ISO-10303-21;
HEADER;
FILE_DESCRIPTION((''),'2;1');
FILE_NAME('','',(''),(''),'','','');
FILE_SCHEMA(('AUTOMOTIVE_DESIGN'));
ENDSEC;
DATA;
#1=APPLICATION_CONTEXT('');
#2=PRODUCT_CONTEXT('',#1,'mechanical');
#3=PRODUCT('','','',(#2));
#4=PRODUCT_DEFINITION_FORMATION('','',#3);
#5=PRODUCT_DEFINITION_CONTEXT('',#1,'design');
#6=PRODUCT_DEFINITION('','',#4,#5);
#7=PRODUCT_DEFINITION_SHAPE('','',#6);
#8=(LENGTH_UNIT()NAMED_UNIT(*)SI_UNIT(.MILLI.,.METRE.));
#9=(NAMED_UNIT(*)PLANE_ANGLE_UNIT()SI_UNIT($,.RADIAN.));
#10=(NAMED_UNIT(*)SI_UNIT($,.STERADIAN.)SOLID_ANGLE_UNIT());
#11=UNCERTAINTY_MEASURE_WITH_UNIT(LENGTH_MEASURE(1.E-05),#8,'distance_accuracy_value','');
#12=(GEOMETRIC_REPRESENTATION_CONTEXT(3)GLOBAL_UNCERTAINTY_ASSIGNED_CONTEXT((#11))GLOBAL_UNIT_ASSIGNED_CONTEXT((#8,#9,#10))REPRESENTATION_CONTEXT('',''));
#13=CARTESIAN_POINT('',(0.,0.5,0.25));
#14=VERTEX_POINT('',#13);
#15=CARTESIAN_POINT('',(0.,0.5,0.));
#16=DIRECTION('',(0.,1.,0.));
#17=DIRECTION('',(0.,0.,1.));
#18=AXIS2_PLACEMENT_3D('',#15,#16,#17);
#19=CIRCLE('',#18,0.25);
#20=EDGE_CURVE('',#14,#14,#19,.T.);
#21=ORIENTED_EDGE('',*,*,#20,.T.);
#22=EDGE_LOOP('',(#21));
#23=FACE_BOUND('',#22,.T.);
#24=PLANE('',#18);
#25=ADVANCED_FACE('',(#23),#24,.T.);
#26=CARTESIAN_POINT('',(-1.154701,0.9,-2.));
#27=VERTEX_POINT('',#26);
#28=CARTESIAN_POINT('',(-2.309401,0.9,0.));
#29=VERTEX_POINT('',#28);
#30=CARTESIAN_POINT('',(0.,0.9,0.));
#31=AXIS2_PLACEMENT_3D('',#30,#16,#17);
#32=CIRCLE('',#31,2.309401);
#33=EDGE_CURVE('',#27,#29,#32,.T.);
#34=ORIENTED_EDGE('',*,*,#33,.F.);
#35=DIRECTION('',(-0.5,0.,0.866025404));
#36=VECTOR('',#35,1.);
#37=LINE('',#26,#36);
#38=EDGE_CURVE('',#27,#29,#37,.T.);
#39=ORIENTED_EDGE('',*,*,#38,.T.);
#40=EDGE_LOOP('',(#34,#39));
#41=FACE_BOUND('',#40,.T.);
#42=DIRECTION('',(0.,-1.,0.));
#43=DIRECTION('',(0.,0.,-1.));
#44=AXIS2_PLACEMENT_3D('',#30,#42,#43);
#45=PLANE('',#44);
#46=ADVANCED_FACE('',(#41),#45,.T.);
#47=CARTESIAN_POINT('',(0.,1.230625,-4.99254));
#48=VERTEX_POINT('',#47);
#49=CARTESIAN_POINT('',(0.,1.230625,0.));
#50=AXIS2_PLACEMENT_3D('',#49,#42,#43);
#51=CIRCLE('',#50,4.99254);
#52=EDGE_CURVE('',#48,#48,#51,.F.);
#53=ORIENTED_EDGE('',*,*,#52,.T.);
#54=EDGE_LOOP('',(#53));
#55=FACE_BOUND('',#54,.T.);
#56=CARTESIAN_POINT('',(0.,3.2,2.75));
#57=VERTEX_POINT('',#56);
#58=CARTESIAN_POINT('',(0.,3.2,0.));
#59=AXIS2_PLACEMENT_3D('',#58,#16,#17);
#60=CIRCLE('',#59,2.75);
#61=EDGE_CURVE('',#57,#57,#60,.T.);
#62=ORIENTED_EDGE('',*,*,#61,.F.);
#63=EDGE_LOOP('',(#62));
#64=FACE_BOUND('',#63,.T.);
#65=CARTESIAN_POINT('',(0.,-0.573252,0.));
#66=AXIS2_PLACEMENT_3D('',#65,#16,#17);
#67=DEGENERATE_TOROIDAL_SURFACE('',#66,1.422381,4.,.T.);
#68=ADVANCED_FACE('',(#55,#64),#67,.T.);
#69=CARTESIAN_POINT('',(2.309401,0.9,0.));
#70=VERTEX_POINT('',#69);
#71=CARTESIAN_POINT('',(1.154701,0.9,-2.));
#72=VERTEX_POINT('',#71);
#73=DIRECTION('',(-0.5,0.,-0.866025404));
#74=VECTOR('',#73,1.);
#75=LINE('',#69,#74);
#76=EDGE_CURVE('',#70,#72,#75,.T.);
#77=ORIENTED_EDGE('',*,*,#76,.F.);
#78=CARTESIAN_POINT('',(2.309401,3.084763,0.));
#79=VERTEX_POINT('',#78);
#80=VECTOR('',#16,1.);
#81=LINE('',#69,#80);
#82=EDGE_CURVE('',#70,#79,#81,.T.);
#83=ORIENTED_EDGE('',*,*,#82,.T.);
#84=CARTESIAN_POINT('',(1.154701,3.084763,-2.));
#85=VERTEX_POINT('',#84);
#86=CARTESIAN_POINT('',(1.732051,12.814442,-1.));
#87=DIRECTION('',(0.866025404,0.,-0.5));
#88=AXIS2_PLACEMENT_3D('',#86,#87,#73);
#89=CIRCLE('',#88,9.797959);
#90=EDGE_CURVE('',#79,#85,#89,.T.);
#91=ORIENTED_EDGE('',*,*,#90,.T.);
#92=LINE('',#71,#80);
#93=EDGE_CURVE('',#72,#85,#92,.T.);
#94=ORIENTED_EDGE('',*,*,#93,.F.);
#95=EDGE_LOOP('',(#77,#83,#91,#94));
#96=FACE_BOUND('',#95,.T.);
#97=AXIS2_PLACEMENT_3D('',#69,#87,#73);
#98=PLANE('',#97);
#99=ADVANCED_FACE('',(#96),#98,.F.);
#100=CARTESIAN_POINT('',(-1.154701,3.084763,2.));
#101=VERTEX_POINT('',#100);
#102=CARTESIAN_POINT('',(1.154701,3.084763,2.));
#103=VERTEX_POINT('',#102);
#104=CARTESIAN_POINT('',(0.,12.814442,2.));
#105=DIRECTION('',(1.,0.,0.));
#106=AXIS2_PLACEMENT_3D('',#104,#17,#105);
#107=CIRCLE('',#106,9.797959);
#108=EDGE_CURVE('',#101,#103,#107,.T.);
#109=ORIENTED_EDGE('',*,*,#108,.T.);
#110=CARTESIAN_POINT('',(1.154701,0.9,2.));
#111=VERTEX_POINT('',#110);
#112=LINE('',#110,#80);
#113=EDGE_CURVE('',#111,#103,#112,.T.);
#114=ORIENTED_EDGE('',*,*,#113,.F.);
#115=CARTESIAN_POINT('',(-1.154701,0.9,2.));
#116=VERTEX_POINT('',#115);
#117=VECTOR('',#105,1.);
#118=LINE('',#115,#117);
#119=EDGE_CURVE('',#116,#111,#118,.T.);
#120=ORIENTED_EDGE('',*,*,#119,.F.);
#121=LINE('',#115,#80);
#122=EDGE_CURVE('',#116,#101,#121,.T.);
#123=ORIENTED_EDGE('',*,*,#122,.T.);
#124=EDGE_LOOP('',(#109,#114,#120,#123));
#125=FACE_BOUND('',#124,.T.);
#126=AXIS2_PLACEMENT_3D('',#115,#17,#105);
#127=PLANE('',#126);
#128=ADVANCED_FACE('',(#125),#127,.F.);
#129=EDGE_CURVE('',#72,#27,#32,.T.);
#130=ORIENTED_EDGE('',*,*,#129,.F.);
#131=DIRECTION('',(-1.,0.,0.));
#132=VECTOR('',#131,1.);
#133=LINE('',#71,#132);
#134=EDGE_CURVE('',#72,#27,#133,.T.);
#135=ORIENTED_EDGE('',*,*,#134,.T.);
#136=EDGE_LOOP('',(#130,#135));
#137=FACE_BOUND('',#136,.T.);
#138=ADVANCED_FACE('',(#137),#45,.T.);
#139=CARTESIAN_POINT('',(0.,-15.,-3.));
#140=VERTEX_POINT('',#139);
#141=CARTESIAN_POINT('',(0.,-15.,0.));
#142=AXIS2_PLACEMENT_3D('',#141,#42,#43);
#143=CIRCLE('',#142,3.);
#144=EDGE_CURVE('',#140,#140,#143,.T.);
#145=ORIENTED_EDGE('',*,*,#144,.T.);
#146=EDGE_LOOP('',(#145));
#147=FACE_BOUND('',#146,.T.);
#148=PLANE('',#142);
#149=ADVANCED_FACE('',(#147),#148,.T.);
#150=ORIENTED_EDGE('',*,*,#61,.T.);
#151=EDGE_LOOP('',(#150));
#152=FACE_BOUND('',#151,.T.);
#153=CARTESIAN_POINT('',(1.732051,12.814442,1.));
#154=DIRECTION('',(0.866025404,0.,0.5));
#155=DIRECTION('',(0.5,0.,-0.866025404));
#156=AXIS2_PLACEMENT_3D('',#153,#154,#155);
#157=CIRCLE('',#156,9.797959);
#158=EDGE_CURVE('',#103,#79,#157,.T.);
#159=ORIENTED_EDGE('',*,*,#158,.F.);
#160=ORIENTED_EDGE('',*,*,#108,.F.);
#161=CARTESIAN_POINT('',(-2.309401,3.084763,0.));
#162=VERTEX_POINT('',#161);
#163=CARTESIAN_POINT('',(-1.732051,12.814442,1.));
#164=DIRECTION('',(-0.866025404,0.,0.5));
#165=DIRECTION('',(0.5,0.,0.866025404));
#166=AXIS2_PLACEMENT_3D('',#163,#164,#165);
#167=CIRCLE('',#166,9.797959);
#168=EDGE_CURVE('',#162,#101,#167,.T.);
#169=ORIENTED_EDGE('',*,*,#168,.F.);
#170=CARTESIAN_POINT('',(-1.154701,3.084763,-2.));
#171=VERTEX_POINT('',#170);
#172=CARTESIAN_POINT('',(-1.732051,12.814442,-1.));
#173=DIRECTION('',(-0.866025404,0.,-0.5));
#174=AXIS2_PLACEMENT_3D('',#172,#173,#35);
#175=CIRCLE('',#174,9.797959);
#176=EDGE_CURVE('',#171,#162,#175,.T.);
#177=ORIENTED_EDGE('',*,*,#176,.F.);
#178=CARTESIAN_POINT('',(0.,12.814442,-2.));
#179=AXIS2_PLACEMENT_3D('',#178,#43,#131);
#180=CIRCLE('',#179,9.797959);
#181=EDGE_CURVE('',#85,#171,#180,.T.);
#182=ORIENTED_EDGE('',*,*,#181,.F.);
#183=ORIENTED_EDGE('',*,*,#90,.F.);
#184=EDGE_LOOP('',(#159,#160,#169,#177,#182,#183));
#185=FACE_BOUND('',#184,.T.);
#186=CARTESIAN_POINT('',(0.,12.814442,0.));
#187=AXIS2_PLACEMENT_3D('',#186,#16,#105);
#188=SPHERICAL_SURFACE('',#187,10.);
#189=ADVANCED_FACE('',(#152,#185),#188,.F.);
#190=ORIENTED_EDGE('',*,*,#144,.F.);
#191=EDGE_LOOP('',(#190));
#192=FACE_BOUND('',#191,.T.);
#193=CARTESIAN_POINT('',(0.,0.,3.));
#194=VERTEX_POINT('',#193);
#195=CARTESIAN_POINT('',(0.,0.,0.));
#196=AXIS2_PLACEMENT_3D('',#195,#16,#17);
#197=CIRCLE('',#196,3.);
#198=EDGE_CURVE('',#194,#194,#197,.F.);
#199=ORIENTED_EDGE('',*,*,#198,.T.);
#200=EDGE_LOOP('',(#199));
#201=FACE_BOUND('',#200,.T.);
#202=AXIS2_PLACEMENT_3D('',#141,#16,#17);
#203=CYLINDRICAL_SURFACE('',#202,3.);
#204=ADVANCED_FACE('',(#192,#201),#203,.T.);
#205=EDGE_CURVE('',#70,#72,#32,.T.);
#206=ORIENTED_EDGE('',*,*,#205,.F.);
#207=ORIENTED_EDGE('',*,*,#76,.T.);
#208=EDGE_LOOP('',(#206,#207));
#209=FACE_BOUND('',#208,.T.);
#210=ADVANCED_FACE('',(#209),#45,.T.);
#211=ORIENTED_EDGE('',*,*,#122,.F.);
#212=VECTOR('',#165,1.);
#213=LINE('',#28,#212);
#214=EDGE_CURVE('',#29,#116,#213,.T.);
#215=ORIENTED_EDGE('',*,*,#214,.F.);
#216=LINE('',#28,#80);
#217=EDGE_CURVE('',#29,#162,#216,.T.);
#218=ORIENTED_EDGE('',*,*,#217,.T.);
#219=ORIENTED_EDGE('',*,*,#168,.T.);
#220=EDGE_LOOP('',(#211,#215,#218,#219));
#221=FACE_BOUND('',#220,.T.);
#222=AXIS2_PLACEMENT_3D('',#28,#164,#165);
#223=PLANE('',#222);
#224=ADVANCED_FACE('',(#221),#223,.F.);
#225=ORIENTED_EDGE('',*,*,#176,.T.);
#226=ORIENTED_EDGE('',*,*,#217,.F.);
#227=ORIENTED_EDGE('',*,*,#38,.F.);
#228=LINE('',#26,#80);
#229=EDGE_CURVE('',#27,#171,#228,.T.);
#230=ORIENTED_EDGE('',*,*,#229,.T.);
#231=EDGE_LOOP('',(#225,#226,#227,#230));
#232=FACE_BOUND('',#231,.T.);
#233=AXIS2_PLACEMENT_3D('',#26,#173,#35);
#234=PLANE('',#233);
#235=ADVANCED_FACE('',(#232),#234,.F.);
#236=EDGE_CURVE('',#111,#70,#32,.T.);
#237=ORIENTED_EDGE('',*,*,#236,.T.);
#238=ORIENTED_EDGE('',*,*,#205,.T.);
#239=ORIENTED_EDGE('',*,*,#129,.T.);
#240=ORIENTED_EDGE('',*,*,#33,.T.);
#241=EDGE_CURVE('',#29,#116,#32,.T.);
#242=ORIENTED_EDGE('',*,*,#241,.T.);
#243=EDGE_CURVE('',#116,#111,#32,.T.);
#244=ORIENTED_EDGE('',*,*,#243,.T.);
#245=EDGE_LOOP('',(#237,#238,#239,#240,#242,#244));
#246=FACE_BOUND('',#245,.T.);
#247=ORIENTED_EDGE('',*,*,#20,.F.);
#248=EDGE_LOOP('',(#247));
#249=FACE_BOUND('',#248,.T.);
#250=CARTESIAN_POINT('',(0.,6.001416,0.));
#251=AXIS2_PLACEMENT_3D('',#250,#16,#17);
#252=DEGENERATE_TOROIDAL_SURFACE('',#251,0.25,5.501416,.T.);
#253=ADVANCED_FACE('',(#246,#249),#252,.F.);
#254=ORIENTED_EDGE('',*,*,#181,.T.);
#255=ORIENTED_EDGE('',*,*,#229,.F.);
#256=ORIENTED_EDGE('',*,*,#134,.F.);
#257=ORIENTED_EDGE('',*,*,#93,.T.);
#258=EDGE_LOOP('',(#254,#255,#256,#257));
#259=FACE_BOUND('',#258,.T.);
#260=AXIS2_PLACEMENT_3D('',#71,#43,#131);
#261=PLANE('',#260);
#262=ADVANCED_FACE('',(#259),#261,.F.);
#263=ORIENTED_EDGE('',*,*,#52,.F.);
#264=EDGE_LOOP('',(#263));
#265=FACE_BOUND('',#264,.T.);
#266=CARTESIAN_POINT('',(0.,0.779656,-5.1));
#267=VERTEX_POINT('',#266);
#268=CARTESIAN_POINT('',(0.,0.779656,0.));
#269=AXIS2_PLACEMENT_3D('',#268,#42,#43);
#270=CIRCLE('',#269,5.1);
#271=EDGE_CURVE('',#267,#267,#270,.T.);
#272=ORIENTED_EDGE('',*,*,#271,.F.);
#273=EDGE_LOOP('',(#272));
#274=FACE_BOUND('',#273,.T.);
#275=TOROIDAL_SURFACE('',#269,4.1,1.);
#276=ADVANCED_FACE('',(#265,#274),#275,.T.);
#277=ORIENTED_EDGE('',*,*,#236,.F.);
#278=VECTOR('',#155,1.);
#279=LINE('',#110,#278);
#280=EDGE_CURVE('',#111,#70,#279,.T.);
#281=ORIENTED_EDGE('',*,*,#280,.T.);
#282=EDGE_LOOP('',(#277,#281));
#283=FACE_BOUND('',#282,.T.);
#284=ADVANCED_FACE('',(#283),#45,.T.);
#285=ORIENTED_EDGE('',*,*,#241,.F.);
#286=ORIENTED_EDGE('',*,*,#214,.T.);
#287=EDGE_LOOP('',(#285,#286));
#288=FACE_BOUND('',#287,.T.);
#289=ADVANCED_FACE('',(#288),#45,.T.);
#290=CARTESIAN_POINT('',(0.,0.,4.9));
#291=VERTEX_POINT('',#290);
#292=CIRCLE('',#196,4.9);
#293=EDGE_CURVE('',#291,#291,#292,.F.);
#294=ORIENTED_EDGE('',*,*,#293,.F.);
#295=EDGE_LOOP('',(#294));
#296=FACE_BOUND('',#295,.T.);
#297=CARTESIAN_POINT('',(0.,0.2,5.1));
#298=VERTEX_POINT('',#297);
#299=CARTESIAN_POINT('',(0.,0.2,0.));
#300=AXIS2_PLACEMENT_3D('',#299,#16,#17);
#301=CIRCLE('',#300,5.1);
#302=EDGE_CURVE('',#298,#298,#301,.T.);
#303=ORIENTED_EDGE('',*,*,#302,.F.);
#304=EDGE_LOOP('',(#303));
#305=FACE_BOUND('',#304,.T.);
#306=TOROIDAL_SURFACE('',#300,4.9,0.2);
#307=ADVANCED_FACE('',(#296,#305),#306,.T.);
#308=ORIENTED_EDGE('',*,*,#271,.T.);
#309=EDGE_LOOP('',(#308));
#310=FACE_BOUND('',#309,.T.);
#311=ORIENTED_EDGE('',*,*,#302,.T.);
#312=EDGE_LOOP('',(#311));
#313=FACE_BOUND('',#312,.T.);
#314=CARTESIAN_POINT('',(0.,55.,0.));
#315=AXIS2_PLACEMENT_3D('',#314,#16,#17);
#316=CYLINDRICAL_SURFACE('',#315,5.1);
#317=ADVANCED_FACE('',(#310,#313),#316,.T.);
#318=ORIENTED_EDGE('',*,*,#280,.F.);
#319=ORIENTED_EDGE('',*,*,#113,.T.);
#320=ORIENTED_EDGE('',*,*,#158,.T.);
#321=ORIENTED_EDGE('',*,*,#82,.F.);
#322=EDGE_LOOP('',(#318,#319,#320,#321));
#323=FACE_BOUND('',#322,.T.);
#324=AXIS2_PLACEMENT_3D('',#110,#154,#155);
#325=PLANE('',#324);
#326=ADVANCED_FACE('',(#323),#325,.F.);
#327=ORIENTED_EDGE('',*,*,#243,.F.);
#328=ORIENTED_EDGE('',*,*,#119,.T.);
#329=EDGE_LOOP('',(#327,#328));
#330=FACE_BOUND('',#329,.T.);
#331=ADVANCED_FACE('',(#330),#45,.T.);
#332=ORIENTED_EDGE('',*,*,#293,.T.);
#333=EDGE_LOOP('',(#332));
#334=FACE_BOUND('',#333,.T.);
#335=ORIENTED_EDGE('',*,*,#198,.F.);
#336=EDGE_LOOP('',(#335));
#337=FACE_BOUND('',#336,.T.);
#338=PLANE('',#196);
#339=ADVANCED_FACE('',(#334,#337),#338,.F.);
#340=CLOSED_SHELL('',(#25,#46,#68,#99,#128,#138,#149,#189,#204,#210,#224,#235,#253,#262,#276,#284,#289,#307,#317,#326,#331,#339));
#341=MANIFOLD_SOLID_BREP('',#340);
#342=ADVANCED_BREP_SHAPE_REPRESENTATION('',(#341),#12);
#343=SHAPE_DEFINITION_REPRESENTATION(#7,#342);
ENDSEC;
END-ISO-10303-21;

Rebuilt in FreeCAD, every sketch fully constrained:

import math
import FreeCAD as App
import Part
import Sketcher

V = App.Vector
Q = App.Units.Quantity


def edges_at(feature, points):
    """Names of the edges that pass closest to the given points."""
    edges = feature.Shape.Edges
    near = lambda p: min(range(len(edges)), key=lambda i: edges[i].distToShape(Part.Vertex(*p))[0])
    return sorted({f"Edge{near(p) + 1}" for p in points})

doc = App.newDocument("Part")
body = doc.addObject("PartDesign::Body", "Body")

sketch1 = body.newObject("Sketcher::SketchObject", "Sketch")
sketch1.AttachmentSupport = (doc.getObject("XY_Plane"), [""])
sketch1.MapMode = "FlatFace"
sketch1.addGeometry(Part.LineSegment(V(0, 0, 0), V(5.1, 0, 0)), False)
sketch1.addGeometry(Part.LineSegment(V(5.1, 0, 0), V(5.1, 1, 0)), False)
sketch1.addGeometry(Part.ArcOfCircle(Part.Circle(V(1.4, -0.6, 0), V(0, 0, 1), 4), math.radians(23), math.radians(71)), False)
sketch1.addGeometry(Part.LineSegment(V(2.8, 3.2, 0), V(0, 3.2, 0)), False)
sketch1.addGeometry(Part.LineSegment(V(0, 3.2, 0), V(0, 0, 0)), False)
sketch1.addConstraint(Sketcher.Constraint("Coincident", 0, 2, 1, 1))
sketch1.addConstraint(Sketcher.Constraint("Coincident", 1, 2, 2, 1))
sketch1.addConstraint(Sketcher.Constraint("Coincident", 2, 2, 3, 1))
sketch1.addConstraint(Sketcher.Constraint("Coincident", 3, 2, 4, 1))
sketch1.addConstraint(Sketcher.Constraint("Coincident", 4, 2, 0, 1))
sketch1.addConstraint(Sketcher.Constraint("Horizontal", 0))
sketch1.addConstraint(Sketcher.Constraint("Vertical", 1))
sketch1.addConstraint(Sketcher.Constraint("Horizontal", 3))
sketch1.addConstraint(Sketcher.Constraint("Vertical", 4))
sketch1.addConstraint(Sketcher.Constraint("Coincident", 4, 2, -1, 1))
sketch1.addConstraint(Sketcher.Constraint("Radius", 2, Q("4 mm")))
sketch1.addConstraint(Sketcher.Constraint("DistanceY", 1, 1, 1, 2, Q("1 mm")))
sketch1.addConstraint(Sketcher.Constraint("DistanceX", 0, 1, 0, 2, Q("5.1 mm")))
sketch1.addConstraint(Sketcher.Constraint("DistanceY", 4, 2, 4, 1, Q("3.2 mm")))
sketch1.addConstraint(Sketcher.Constraint("DistanceX", 3, 2, 3, 1, Q("2.75 mm")))
revolution = body.newObject("PartDesign::Revolution", "Revolution")
revolution.Profile = sketch1
revolution.ReferenceAxis = (sketch1, ["V_Axis"])
revolution.Angle = 360
doc.recompute()

fillet = body.newObject("PartDesign::Fillet", "Fillet")
fillet.Base = (revolution, edges_at(revolution, [(-5.1, 0, 0)]))
fillet.Radius = 0.2
doc.recompute()

fillet2 = body.newObject("PartDesign::Fillet", "Fillet001")
fillet2.Base = (fillet, edges_at(fillet, [(-5.1, 1, 0)]))
fillet2.Radius = 1

sketch2 = body.newObject("Sketcher::SketchObject", "Sketch001")
sketch2.AttachmentSupport = (doc.getObject("XZ_Plane"), [""])
sketch2.MapMode = "FlatFace"
sketch2.addGeometry(Part.Circle(V(0, 0, 0), V(0, 0, 1), 3), False)
sketch2.addConstraint(Sketcher.Constraint("Coincident", 0, 3, -1, 1))
sketch2.addConstraint(Sketcher.Constraint("Diameter", 0, Q("6 mm")))
pad1 = body.newObject("PartDesign::Pad", "Pad")
pad1.Profile = sketch2
pad1.Length = 15

sketch3 = body.newObject("Sketcher::SketchObject", "Sketch002")
sketch3.AttachmentSupport = (doc.getObject("XY_Plane"), [""])
sketch3.MapMode = "FlatFace"
sketch3.addGeometry(Part.LineSegment(V(0, 3.2, 0), V(0, 0, 0)), False)
sketch3.addGeometry(Part.LineSegment(V(0, 0, 0), V(4.9, 0, 0)), False)
sketch3.addGeometry(Part.LineSegment(V(4.9, 0, 0), V(2.8, 3.2, 0)), False)
sketch3.addGeometry(Part.LineSegment(V(2.8, 3.2, 0), V(0, 3.2, 0)), False)
sketch3.addConstraint(Sketcher.Constraint("Coincident", 0, 2, 1, 1))
sketch3.addConstraint(Sketcher.Constraint("Coincident", 1, 2, 2, 1))
sketch3.addConstraint(Sketcher.Constraint("Coincident", 2, 2, 3, 1))
sketch3.addConstraint(Sketcher.Constraint("Coincident", 3, 2, 0, 1))
sketch3.addConstraint(Sketcher.Constraint("Vertical", 0))
sketch3.addConstraint(Sketcher.Constraint("Horizontal", 1))
sketch3.addConstraint(Sketcher.Constraint("Horizontal", 3))
sketch3.addConstraint(Sketcher.Constraint("Coincident", 0, 2, -1, 1))
sketch3.addConstraint(Sketcher.Constraint("DistanceX", 1, 1, 1, 2, Q("4.9 mm")))
sketch3.addConstraint(Sketcher.Constraint("DistanceY", 0, 2, 0, 1, Q("3.2 mm")))
sketch3.addConstraint(Sketcher.Constraint("DistanceX", 3, 2, 3, 1, Q("2.75 mm")))
revolution2 = body.newObject("PartDesign::Revolution", "Revolution001")
revolution2.Profile = sketch3
revolution2.ReferenceAxis = (sketch3, ["V_Axis"])
revolution2.Angle = 360

sketch4 = body.newObject("Sketcher::SketchObject", "Sketch003")
sketch4.AttachmentSupport = (doc.getObject("XZ_Plane"), [""])
sketch4.MapMode = "FlatFace"
sketch4.AttachmentOffset = App.Placement(V(0, 0, -3.2), App.Rotation())
sketch4.addGeometry(Part.LineSegment(V(1.2, 2, 0), V(2.3, 0, 0)), False)
sketch4.addGeometry(Part.LineSegment(V(2.3, 0, 0), V(1.2, -2, 0)), False)
sketch4.addGeometry(Part.LineSegment(V(1.2, -2, 0), V(-1.2, -2, 0)), False)
sketch4.addGeometry(Part.LineSegment(V(-1.2, -2, 0), V(-2.3, 0, 0)), False)
sketch4.addGeometry(Part.LineSegment(V(-2.3, 0, 0), V(-1.2, 2, 0)), False)
sketch4.addGeometry(Part.LineSegment(V(-1.2, 2, 0), V(1.2, 2, 0)), False)
sketch4.addConstraint(Sketcher.Constraint("Coincident", 0, 2, 1, 1))
sketch4.addConstraint(Sketcher.Constraint("Coincident", 1, 2, 2, 1))
sketch4.addConstraint(Sketcher.Constraint("Coincident", 2, 2, 3, 1))
sketch4.addConstraint(Sketcher.Constraint("Coincident", 3, 2, 4, 1))
sketch4.addConstraint(Sketcher.Constraint("Coincident", 4, 2, 5, 1))
sketch4.addConstraint(Sketcher.Constraint("Coincident", 5, 2, 0, 1))
sketch4.addConstraint(Sketcher.Constraint("Horizontal", 2))
sketch4.addConstraint(Sketcher.Constraint("Horizontal", 5))
sketch4.addConstraint(Sketcher.Constraint("Symmetric", 0, 2, 3, 2, -1, 1))
sketch4.addConstraint(Sketcher.Constraint("Symmetric", 1, 2, 4, 2, -1, 1))
sketch4.addConstraint(Sketcher.Constraint("PointOnObject", 0, 2, -1))
sketch4.addConstraint(Sketcher.Constraint("Parallel", 0, 3))
sketch4.addConstraint(Sketcher.Constraint("Vertical", 2, 2, 4, 2))
sketch4.addConstraint(Sketcher.Constraint("Angle", 0, Q("-60 deg")))
sketch4.addConstraint(Sketcher.Constraint("DistanceY", 1, 2, -1, 1, Q("2 mm")))
sketch4.addConstraint(Sketcher.Constraint("DistanceX", 2, 2, 2, 1, Q("2.309401 mm")))
pocket1 = body.newObject("PartDesign::Pocket", "Pocket")
pocket1.Profile = sketch4
pocket1.Length = 2.3
pocket1.Reversed = True

sketch5 = body.newObject("Sketcher::SketchObject", "Sketch004")
sketch5.AttachmentSupport = (doc.getObject("XY_Plane"), [""])
sketch5.MapMode = "FlatFace"
sketch5.addGeometry(Part.LineSegment(V(0, 0.9, 0), V(0, 0.5, 0)), False)
sketch5.addGeometry(Part.LineSegment(V(0, 0.5, 0), V(0.25, 0.5, 0)), False)
sketch5.addGeometry(Part.ArcOfCircle(Part.Circle(V(0.25, 6, 0), V(0, 0, 1), 5.5), math.radians(-90), math.radians(-68)), False)
sketch5.addGeometry(Part.LineSegment(V(2.31, 0.9, 0), V(0, 0.9, 0)), False)
sketch5.addConstraint(Sketcher.Constraint("Coincident", 0, 2, 1, 1))
sketch5.addConstraint(Sketcher.Constraint("Tangent", 1, 2, 2, 1))
sketch5.addConstraint(Sketcher.Constraint("Coincident", 2, 2, 3, 1))
sketch5.addConstraint(Sketcher.Constraint("Coincident", 3, 2, 0, 1))
sketch5.addConstraint(Sketcher.Constraint("Vertical", 0))
sketch5.addConstraint(Sketcher.Constraint("Horizontal", 1))
sketch5.addConstraint(Sketcher.Constraint("Horizontal", 3))
sketch5.addConstraint(Sketcher.Constraint("PointOnObject", 0, 2, -2))
sketch5.addConstraint(Sketcher.Constraint("DistanceY", 0, 2, 0, 1, Q("0.4 mm")))
sketch5.addConstraint(Sketcher.Constraint("DistanceX", 1, 1, 1, 2, Q("0.25 mm")))
sketch5.addConstraint(Sketcher.Constraint("DistanceY", -1, 1, 0, 2, Q("0.5 mm")))
sketch5.addConstraint(Sketcher.Constraint("DistanceX", 3, 2, 3, 1, Q("2.309401 mm")))
groove = body.newObject("PartDesign::Groove", "Groove")
groove.Profile = sketch5
groove.ReferenceAxis = (sketch5, ["V_Axis"])
groove.Angle = 360

sketch6 = body.newObject("Sketcher::SketchObject", "Sketch005")
sketch6.AttachmentSupport = (doc.getObject("XY_Plane"), [""])
sketch6.MapMode = "FlatFace"
sketch6.addGeometry(Part.ArcOfCircle(Part.Circle(V(0, 12.81, 0), V(0, 0, 1), 10), math.radians(-90), math.radians(-74.04)), False)
sketch6.addGeometry(Part.LineSegment(V(2.75, 3.2, 0), V(0, 3.2, 0)), False)
sketch6.addGeometry(Part.LineSegment(V(0, 3.2, 0), V(0, 2.81, 0)), False)
sketch6.addConstraint(Sketcher.Constraint("Coincident", 0, 2, 1, 1))
sketch6.addConstraint(Sketcher.Constraint("Coincident", 1, 2, 2, 1))
sketch6.addConstraint(Sketcher.Constraint("Coincident", 2, 2, 0, 1))
sketch6.addConstraint(Sketcher.Constraint("Horizontal", 1))
sketch6.addConstraint(Sketcher.Constraint("Vertical", 2))
sketch6.addConstraint(Sketcher.Constraint("PointOnObject", 0, 3, -2))
sketch6.addConstraint(Sketcher.Constraint("PointOnObject", 1, 2, -2))
sketch6.addConstraint(Sketcher.Constraint("Radius", 0, Q("10 mm")))
sketch6.addConstraint(Sketcher.Constraint("DistanceX", 1, 2, 1, 1, Q("2.75 mm")))
sketch6.addConstraint(Sketcher.Constraint("DistanceY", -1, 1, 0, 2, Q("3.2 mm")))
groove2 = body.newObject("PartDesign::Groove", "Groove001")
groove2.Profile = sketch6
groove2.ReferenceAxis = (sketch6, ["V_Axis"])
groove2.Angle = 360

doc.recompute()
